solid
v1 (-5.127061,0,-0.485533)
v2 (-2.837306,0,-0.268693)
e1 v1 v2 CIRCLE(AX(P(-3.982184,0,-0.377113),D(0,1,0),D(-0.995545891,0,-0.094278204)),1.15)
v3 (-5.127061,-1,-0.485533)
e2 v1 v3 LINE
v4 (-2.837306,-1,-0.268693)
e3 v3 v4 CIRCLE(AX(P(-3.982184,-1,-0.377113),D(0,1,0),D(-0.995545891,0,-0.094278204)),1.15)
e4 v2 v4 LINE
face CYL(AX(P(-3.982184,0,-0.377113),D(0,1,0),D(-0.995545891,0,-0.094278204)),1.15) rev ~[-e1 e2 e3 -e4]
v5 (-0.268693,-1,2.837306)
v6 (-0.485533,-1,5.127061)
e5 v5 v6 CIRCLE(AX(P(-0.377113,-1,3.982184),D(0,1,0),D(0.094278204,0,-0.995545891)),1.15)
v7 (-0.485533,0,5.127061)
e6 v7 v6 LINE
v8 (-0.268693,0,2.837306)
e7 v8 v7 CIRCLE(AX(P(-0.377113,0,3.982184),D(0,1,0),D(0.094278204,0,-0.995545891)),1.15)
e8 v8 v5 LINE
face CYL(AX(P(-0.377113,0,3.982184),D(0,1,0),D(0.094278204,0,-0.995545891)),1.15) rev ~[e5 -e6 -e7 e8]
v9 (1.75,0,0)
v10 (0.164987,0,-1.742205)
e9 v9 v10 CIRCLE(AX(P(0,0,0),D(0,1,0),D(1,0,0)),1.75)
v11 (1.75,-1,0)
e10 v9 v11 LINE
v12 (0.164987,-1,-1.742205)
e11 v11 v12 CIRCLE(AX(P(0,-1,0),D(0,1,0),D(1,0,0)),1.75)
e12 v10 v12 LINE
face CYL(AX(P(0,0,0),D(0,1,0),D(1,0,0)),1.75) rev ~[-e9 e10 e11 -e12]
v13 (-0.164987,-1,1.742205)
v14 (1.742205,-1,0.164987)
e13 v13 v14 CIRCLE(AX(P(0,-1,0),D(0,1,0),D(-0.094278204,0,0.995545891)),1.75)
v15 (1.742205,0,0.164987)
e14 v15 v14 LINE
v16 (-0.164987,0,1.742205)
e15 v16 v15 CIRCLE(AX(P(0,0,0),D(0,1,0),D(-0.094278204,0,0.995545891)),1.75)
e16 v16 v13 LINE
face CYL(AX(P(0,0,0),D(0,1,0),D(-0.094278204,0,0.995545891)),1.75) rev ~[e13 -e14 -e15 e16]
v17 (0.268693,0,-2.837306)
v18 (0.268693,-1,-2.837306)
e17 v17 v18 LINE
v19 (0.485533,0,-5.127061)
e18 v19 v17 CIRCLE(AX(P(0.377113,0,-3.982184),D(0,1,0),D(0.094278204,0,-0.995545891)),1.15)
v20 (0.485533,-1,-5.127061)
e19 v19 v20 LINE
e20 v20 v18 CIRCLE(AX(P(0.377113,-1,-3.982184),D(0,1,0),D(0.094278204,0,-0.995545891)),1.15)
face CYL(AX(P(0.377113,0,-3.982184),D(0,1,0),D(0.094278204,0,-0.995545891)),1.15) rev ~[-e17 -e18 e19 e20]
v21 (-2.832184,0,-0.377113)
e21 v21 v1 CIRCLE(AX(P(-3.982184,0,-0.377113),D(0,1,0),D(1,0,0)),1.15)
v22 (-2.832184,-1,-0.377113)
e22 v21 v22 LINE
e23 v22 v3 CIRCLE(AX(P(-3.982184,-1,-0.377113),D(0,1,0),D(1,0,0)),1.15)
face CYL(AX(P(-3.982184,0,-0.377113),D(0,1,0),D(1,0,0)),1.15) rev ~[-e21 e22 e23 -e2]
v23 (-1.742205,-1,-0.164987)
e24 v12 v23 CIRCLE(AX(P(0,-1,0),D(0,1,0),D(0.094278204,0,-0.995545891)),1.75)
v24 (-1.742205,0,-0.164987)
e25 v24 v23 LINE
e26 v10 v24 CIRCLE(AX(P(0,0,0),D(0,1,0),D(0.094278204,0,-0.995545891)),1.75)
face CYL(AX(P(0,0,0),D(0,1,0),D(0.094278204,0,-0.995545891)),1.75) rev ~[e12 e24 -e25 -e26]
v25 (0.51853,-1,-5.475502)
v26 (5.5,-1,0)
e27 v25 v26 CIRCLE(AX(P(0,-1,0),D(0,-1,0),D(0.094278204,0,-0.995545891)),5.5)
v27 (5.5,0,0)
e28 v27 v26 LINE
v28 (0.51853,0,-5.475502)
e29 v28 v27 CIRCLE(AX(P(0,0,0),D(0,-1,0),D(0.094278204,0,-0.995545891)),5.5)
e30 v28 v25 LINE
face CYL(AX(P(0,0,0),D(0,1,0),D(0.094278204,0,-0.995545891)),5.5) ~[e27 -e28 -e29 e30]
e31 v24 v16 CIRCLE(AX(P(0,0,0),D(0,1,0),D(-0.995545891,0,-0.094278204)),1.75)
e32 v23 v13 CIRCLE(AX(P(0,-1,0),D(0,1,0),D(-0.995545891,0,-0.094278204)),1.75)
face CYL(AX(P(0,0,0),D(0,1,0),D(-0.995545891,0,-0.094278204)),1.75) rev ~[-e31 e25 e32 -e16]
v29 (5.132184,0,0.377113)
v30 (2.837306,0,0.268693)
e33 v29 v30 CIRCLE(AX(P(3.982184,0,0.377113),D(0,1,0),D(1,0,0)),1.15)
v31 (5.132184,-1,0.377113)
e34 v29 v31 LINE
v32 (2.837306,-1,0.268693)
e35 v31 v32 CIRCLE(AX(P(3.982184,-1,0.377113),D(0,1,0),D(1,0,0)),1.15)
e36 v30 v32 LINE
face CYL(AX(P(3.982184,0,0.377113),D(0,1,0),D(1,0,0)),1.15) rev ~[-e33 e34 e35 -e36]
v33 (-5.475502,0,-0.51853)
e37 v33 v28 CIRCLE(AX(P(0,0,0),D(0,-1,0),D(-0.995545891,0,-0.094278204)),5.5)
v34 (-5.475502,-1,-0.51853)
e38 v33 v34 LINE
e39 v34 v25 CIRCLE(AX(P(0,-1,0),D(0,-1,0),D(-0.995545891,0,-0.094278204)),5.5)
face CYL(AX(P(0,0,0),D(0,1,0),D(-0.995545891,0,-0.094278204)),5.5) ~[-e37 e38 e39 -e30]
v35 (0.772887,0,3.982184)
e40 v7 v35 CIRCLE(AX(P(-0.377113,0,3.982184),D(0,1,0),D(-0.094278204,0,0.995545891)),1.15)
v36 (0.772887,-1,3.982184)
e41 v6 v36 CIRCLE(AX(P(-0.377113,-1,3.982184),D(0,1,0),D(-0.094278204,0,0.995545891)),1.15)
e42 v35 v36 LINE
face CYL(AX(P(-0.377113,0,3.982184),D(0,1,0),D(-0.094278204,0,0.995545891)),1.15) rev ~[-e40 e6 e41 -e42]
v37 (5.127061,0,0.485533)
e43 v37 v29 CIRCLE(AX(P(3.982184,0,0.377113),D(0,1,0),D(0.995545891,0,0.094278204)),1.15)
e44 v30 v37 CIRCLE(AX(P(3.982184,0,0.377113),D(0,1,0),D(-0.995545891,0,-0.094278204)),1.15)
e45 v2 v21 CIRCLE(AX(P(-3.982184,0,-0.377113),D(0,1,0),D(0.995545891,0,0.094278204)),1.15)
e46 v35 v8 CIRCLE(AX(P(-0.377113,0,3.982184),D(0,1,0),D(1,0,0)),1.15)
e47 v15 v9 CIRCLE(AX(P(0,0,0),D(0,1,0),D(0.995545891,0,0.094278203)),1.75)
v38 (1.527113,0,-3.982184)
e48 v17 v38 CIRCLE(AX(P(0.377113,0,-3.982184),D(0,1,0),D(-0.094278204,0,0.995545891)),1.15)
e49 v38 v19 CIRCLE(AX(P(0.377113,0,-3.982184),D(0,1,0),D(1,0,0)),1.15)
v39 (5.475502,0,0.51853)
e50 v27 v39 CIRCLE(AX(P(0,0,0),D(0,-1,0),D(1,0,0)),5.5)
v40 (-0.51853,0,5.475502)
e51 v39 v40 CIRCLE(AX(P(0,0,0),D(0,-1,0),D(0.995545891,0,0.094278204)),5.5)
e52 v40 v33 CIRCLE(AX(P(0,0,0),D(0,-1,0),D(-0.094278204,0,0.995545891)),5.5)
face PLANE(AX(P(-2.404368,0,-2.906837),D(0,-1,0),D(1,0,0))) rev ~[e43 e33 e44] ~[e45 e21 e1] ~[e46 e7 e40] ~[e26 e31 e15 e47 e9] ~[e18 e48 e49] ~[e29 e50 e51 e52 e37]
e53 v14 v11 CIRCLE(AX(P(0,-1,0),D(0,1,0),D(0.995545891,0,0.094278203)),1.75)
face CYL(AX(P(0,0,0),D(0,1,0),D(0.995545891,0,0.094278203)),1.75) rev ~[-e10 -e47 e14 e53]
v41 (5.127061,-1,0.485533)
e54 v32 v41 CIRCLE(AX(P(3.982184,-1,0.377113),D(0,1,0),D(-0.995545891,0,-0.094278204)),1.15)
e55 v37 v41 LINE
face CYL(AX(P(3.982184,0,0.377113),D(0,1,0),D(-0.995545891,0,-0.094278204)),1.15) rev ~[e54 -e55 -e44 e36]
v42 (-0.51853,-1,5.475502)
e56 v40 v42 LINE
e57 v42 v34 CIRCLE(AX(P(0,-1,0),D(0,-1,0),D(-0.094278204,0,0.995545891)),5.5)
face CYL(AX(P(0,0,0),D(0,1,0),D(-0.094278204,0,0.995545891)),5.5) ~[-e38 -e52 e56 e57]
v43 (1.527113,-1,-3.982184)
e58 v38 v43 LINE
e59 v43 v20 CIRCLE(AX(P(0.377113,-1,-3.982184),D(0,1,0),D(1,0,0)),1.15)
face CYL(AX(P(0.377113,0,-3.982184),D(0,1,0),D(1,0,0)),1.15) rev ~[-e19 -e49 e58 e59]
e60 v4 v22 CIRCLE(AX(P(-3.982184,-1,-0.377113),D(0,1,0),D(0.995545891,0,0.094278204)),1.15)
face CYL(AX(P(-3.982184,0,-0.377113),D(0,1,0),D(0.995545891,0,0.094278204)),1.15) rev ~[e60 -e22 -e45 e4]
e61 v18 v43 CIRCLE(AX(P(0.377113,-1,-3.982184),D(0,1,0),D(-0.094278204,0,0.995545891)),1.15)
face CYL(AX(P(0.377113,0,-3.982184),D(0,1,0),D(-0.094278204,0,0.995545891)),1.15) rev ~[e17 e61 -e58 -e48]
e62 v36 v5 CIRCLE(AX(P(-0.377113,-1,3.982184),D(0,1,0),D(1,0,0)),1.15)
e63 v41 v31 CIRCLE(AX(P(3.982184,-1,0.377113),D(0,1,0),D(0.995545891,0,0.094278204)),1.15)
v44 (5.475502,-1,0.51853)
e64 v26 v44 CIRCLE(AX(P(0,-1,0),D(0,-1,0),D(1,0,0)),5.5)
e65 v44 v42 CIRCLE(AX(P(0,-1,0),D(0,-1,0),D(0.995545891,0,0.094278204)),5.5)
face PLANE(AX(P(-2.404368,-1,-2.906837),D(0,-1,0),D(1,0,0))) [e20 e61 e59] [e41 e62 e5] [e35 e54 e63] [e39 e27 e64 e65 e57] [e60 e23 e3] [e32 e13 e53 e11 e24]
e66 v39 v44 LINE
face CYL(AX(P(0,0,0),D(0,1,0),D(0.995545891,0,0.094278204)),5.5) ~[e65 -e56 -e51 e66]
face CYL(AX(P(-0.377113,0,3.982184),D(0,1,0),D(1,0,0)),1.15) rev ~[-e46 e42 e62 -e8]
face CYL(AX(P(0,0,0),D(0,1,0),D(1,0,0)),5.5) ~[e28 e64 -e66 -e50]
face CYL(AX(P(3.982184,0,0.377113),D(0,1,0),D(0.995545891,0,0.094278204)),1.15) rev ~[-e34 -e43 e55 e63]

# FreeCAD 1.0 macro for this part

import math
import FreeCAD as App
import Part
import Sketcher
from FreeCAD import Vector

doc = App.newDocument("Part")
params = doc.addObject("Spreadsheet::Sheet", "Params")
for row, (alias, value) in enumerate([
    ("sketch1_radius", "5.5 mm"),
    ("sketch1_radius2", "1.15 mm"),
    ("sketch1_radius3", "1.75 mm"),
    ("pad1_length", "1 mm"),
], start=1):
    params.set(f"A{row}", alias)
    params.set(f"B{row}", "=" + value)
    params.setAlias(f"B{row}", alias)

body = doc.addObject("PartDesign::Body", "Body")

sketch1 = doc.addObject("Sketcher::SketchObject", "Sketch")
body.addObject(sketch1)
sketch1.AttachmentSupport = (doc.XZ_Plane, [""])
sketch1.MapMode = "FlatFace"
sketch1.addGeometry([
    Part.ArcOfCircle(Part.Circle(Vector(0, 0, 0), Vector(0, 0, 1), 5.5), math.radians(0), math.radians(5.41)),
    Part.ArcOfCircle(Part.Circle(Vector(0, 0, 0), Vector(0, 0, 1), 5.5), math.radians(5), math.radians(95)),
    Part.ArcOfCircle(Part.Circle(Vector(0, 0, 0), Vector(0, 0, 1), 5.5), math.radians(95), math.radians(185)),
    Part.ArcOfCircle(Part.Circle(Vector(0, 0, 0), Vector(0, 0, 1), 5.5), math.radians(-175), math.radians(-85)),
    Part.ArcOfCircle(Part.Circle(Vector(0, 0, 0), Vector(0, 0, 1), 5.5), math.radians(-85), math.radians(0)),
    Part.ArcOfCircle(Part.Circle(Vector(-3.98, -0.38, 0), Vector(0, 0, 1), 1.15), math.radians(0), math.radians(5.41)),
    Part.ArcOfCircle(Part.Circle(Vector(-3.98, -0.38, 0), Vector(0, 0, 1), 1.15), math.radians(-175), math.radians(0)),
    Part.ArcOfCircle(Part.Circle(Vector(-3.98, -0.38, 0), Vector(0, 0, 1), 1.15), math.radians(5), math.radians(185)),
    Part.ArcOfCircle(Part.Circle(Vector(0, 0, 0), Vector(0, 0, 1), 1.75), math.radians(-175), math.radians(-85)),
    Part.ArcOfCircle(Part.Circle(Vector(0, 0, 0), Vector(0, 0, 1), 1.75), math.radians(95), math.radians(185)),
    Part.ArcOfCircle(Part.Circle(Vector(0, 0, 0), Vector(0, 0, 1), 1.75), math.radians(5), math.radians(95)),
    Part.ArcOfCircle(Part.Circle(Vector(0, 0, 0), Vector(0, 0, 1), 1.75), math.radians(0), math.radians(5.41)),
    Part.ArcOfCircle(Part.Circle(Vector(0, 0, 0), Vector(0, 0, 1), 1.75), math.radians(-85), math.radians(0)),
    Part.ArcOfCircle(Part.Circle(Vector(0.38, -3.98, 0), Vector(0, 0, 1), 1.15), math.radians(95), math.radians(275)),
    Part.ArcOfCircle(Part.Circle(Vector(0.38, -3.98, 0), Vector(0, 0, 1), 1.15), math.radians(0), math.radians(95)),
    Part.ArcOfCircle(Part.Circle(Vector(0.38, -3.98, 0), Vector(0, 0, 1), 1.15), math.radians(-85), math.radians(0)),
    Part.ArcOfCircle(Part.Circle(Vector(-0.38, 3.98, 0), Vector(0, 0, 1), 1.15), math.radians(95), math.radians(275)),
    Part.ArcOfCircle(Part.Circle(Vector(-0.38, 3.98, 0), Vector(0, 0, 1), 1.15), math.radians(0), math.radians(95)),
    Part.ArcOfCircle(Part.Circle(Vector(-0.38, 3.98, 0), Vector(0, 0, 1), 1.15), math.radians(-85), math.radians(0)),
    Part.ArcOfCircle(Part.Circle(Vector(3.98, 0.38, 0), Vector(0, 0, 1), 1.15), math.radians(-175), math.radians(0)),
    Part.ArcOfCircle(Part.Circle(Vector(3.98, 0.38, 0), Vector(0, 0, 1), 1.15), math.radians(5), math.radians(185)),
    Part.ArcOfCircle(Part.Circle(Vector(3.98, 0.38, 0), Vector(0, 0, 1), 1.15), math.radians(0), math.radians(5.41)),
], False)
sketch1.addConstraint([
    Sketcher.Constraint("Tangent", 0, 2, 1, 1),
    Sketcher.Constraint("Tangent", 1, 2, 2, 1),
    Sketcher.Constraint("Tangent", 2, 2, 3, 1),
    Sketcher.Constraint("Tangent", 3, 2, 4, 1),
    Sketcher.Constraint("Tangent", 4, 2, 0, 1),
    Sketcher.Constraint("Tangent", 5, 1, 6, 2),
    Sketcher.Constraint("Tangent", 6, 1, 7, 2),
    Sketcher.Constraint("Tangent", 7, 1, 5, 2),
    Sketcher.Constraint("Tangent", 8, 1, 9, 2),
    Sketcher.Constraint("Tangent", 9, 1, 10, 2),
    Sketcher.Constraint("Tangent", 10, 1, 11, 2),
    Sketcher.Constraint("Tangent", 11, 1, 12, 2),
    Sketcher.Constraint("Tangent", 12, 1, 8, 2),
    Sketcher.Constraint("Tangent", 13, 1, 14, 2),
    Sketcher.Constraint("Tangent", 14, 1, 15, 2),
    Sketcher.Constraint("Tangent", 15, 1, 13, 2),
    Sketcher.Constraint("Tangent", 16, 1, 17, 2),
    Sketcher.Constraint("Tangent", 17, 1, 18, 2),
    Sketcher.Constraint("Tangent", 18, 1, 16, 2),
    Sketcher.Constraint("Tangent", 19, 1, 20, 2),
    Sketcher.Constraint("Tangent", 20, 1, 21, 2),
    Sketcher.Constraint("Tangent", 21, 1, 19, 2),
    Sketcher.Constraint("Coincident", 0, 3, -1, 1),
    Sketcher.Constraint("Coincident", 2, 3, -1, 1),
    Sketcher.Constraint("Coincident", 8, 3, -1, 1),
    Sketcher.Constraint("Coincident", 10, 3, -1, 1),
    Sketcher.Constraint("Equal", 7, 13),
    Sketcher.Constraint("Equal", 15, 16),
    Sketcher.Constraint("Equal", 18, 19),
    Sketcher.Constraint("Symmetric", 13, 3, 16, 3, -1, 1),
    Sketcher.Constraint("Symmetric", 5, 3, 19, 3, -1, 1),
    Sketcher.Constraint("PointOnObject", 4, 2, -1),
    Sketcher.Constraint("PointOnObject", 11, 1, -1),
    Sketcher.Constraint("Horizontal", 7, 3, 5, 1),
    Sketcher.Constraint("Horizontal", 15, 3, 14, 1),
    Sketcher.Constraint("Horizontal", 18, 3, 17, 1),
    Sketcher.Constraint("Horizontal", 20, 3, 21, 1),
    Sketcher.Constraint("Radius", 0, 5.5),
    Sketcher.Constraint("Radius", 5, 1.15),
    Sketcher.Constraint("Radius", 8, 1.75),
    Sketcher.Constraint("DistanceX", 7, 1, 8, 1, 1.0951),
    Sketcher.Constraint("DistanceY", 13, 1, 12, 1, 1.0951),
    Sketcher.Constraint("DistanceY", 9, 1, 18, 1, 1.0951),
    Sketcher.Constraint("DistanceX", 10, 1, 19, 1, 1.0951),
    Sketcher.Constraint("DistanceY", -1, 1, 0, 2, 0.51853),
    Sketcher.Constraint("DistanceX", 1, 2, -1, 1, 0.51853),
    Sketcher.Constraint("DistanceY", 2, 2, -1, 1, 0.51853),
    Sketcher.Constraint("DistanceX", -1, 1, 3, 2, 0.51853),
    Sketcher.Constraint("DistanceX", 6, 1, -1, 1, 5.127061),
    Sketcher.Constraint("DistanceY", 15, 1, -1, 1, 5.127061),
    Sketcher.Constraint("DistanceY", -1, 1, 16, 1, 5.127061),
    Sketcher.Constraint("DistanceX", -1, 1, 20, 1, 5.127061),
    Sketcher.Constraint("DistanceX", 21, 3, 0, 2, 1.493319),
    Sketcher.Constraint("DistanceY", 16, 3, 1, 2, 1.493319),
    Sketcher.Constraint("DistanceY", 5, 1, 7, 1, 0.10842),
    Sketcher.Constraint("DistanceX", 13, 1, 13, 3, 0.10842),
    Sketcher.Constraint("DistanceX", 16, 3, 18, 1, 0.10842),
    Sketcher.Constraint("DistanceY", 19, 1, 19, 3, 0.10842),
    Sketcher.Constraint("DistanceY", 5, 3, -1, 1, 0.377113),
    Sketcher.Constraint("DistanceX", -1, 1, 13, 3, 0.377113),
])
sketch1.setExpression("Constraints[37]", "Params.sketch1_radius")
sketch1.setExpression("Constraints[38]", "Params.sketch1_radius2")
sketch1.setExpression("Constraints[39]", "Params.sketch1_radius3")
pad1 = doc.addObject("PartDesign::Pad", "Pad")
body.addObject(pad1)
pad1.Profile = sketch1
pad1.setExpression("Length", "Params.pad1_length")

doc.recompute()
